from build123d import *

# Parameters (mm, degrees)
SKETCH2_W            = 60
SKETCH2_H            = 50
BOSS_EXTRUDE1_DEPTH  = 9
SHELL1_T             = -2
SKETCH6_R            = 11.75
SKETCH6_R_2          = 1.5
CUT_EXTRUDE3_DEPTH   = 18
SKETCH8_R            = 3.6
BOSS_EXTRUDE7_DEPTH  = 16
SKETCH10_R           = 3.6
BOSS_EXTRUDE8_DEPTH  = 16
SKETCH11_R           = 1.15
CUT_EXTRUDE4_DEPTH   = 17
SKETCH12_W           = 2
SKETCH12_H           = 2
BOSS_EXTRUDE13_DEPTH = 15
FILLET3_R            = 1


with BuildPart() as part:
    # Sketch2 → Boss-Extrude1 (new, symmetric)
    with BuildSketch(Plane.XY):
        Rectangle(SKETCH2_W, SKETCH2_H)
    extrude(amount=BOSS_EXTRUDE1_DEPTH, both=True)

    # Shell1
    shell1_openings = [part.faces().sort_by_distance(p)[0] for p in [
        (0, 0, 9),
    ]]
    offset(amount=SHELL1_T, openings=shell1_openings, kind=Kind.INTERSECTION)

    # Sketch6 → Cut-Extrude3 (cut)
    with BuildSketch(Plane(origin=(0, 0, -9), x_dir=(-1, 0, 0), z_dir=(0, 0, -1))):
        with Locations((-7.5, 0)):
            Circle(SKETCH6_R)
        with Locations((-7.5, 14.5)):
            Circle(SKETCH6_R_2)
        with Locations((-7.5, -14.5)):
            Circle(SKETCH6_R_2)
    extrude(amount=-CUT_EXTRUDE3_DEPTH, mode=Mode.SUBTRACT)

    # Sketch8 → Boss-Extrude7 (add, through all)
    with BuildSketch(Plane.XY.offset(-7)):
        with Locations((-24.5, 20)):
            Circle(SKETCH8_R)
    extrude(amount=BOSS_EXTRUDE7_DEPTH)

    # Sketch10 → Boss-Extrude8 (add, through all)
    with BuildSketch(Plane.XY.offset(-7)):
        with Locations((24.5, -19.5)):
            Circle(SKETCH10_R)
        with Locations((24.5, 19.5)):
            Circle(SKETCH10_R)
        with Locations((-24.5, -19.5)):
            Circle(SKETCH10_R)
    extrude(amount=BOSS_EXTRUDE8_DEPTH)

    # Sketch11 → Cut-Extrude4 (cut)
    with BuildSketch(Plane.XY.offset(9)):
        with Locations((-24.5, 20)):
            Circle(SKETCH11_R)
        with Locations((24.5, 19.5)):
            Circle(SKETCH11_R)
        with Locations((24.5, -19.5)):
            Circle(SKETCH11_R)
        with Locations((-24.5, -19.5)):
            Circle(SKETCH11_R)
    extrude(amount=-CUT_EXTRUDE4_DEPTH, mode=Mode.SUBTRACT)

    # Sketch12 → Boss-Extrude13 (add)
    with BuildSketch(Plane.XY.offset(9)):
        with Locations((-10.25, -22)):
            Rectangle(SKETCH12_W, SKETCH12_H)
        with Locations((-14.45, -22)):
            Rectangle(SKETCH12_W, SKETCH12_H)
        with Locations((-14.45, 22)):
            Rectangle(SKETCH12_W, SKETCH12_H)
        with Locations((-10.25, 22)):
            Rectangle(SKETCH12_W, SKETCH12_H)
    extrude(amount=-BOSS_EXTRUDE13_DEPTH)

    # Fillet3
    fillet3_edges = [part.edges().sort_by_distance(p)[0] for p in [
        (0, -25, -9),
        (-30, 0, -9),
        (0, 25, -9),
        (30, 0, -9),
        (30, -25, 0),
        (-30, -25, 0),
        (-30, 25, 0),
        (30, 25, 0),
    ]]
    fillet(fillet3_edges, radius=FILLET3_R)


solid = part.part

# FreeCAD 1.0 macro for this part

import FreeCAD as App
import Part
import Sketcher

V = App.Vector
Q = App.Units.Quantity


def edges_at(feature, points):
    """Names of the edges that pass closest to the given points."""
    edges = feature.Shape.Edges
    near = lambda p: min(range(len(edges)), key=lambda i: edges[i].distToShape(Part.Vertex(*p))[0])
    return sorted({f"Edge{near(p) + 1}" for p in points})


def faces_at(feature, points):
    """Names of the faces that lie closest to the given points."""
    faces = feature.Shape.Faces
    near = lambda p: min(range(len(faces)), key=lambda i: faces[i].distToShape(Part.Vertex(*p))[0])
    return sorted({f"Face{near(p) + 1}" for p in points})

doc = App.newDocument("Part")
body = doc.addObject("PartDesign::Body", "Body")

sketch1 = body.newObject("Sketcher::SketchObject", "Sketch")
sketch1.AttachmentSupport = (doc.getObject("XY_Plane"), [""])
sketch1.MapMode = "FlatFace"
sketch1.addGeometry([
    Part.LineSegment(V(-30, 25, 0), V(-30, -25, 0)),
    Part.LineSegment(V(-30, -25, 0), V(30, -25, 0)),
    Part.LineSegment(V(30, -25, 0), V(30, 25, 0)),
    Part.LineSegment(V(30, 25, 0), V(-30, 25, 0)),
], False)
sketch1.addConstraint([
    Sketcher.Constraint("Coincident", 0, 2, 1, 1),
    Sketcher.Constraint("Coincident", 1, 2, 2, 1),
    Sketcher.Constraint("Coincident", 2, 2, 3, 1),
    Sketcher.Constraint("Coincident", 3, 2, 0, 1),
    Sketcher.Constraint("Vertical", 0),
    Sketcher.Constraint("Horizontal", 1),
    Sketcher.Constraint("Vertical", 2),
    Sketcher.Constraint("Horizontal", 3),
    Sketcher.Constraint("Symmetric", 0, 2, 2, 2, -1, 1),
    Sketcher.Constraint("DistanceX", 1, 1, 1, 2, Q("60 mm")),
    Sketcher.Constraint("DistanceY", 0, 2, 0, 1, Q("50 mm")),
])
pad1 = body.newObject("PartDesign::Pad", "Pad")
pad1.Profile = sketch1
pad1.Length = 18
pad1.Midplane = True
doc.recompute()

thickness = body.newObject("PartDesign::Thickness", "Thickness")
thickness.Base = (pad1, faces_at(pad1, [(0, 0, 9)]))
thickness.Value = 2
thickness.Reversed = True
thickness.Join = "Intersection"

sketch2 = body.newObject("Sketcher::SketchObject", "Sketch001")
sketch2.AttachmentSupport = (doc.getObject("XY_Plane"), [""])
sketch2.MapMode = "FlatFace"
sketch2.AttachmentOffset = App.Placement(V(0, 0, -9), App.Rotation())
sketch2.addGeometry([
    Part.Circle(V(7.5, 0, 0), V(0, 0, 1), 11.75),
    Part.Circle(V(7.5, 14.5, 0), V(0, 0, 1), 1.5),
    Part.Circle(V(7.5, -14.5, 0), V(0, 0, 1), 1.5),
], False)
sketch2.addConstraint([
    Sketcher.Constraint("Equal", 1, 2),
    Sketcher.Constraint("Symmetric", 1, 3, 2, 3, -1),
    Sketcher.Constraint("PointOnObject", 0, 3, -1),
    Sketcher.Constraint("Vertical", 0, 3, 1, 3),
    Sketcher.Constraint("Diameter", 1, Q("3 mm")),
    Sketcher.Constraint("Diameter", 0, Q("23.5 mm")),
    Sketcher.Constraint("DistanceY", 2, 3, 1, 3, Q("29 mm")),
    Sketcher.Constraint("DistanceX", -1, 1, 0, 3, Q("7.5 mm")),
])
pocket1 = body.newObject("PartDesign::Pocket", "Pocket")
pocket1.Profile = sketch2
pocket1.Length = 18
pocket1.Reversed = True

sketch3 = body.newObject("Sketcher::SketchObject", "Sketch002")
sketch3.AttachmentSupport = (doc.getObject("XY_Plane"), [""])
sketch3.MapMode = "FlatFace"
sketch3.AttachmentOffset = App.Placement(V(0, 0, -7), App.Rotation())
sketch3.addGeometry(Part.Circle(V(-24.5, 20, 0), V(0, 0, 1), 3.6), False)
sketch3.addConstraint([
    Sketcher.Constraint("Diameter", 0, Q("7.2 mm")),
    Sketcher.Constraint("DistanceY", -1, 1, 0, 3, Q("20 mm")),
    Sketcher.Constraint("DistanceX", 0, 3, -1, 1, Q("24.5 mm")),
])
pad2 = body.newObject("PartDesign::Pad", "Pad001")
pad2.Profile = sketch3
pad2.Length = 16

sketch4 = body.newObject("Sketcher::SketchObject", "Sketch003")
sketch4.AttachmentSupport = (doc.getObject("XY_Plane"), [""])
sketch4.MapMode = "FlatFace"
sketch4.AttachmentOffset = App.Placement(V(0, 0, -7), App.Rotation())
sketch4.addGeometry([
    Part.Circle(V(24.5, -19.5, 0), V(0, 0, 1), 3.6),
    Part.Circle(V(24.5, 19.5, 0), V(0, 0, 1), 3.6),
    Part.Circle(V(-24.5, -19.5, 0), V(0, 0, 1), 3.6),
], False)
sketch4.addConstraint([
    Sketcher.Constraint("Equal", 0, 1),
    Sketcher.Constraint("Equal", 1, 2),
    Sketcher.Constraint("Symmetric", 1, 3, 2, 3, -1, 1),
    Sketcher.Constraint("Symmetric", 0, 3, 2, 3, -2),
    Sketcher.Constraint("Diameter", 0, Q("7.2 mm")),
    Sketcher.Constraint("DistanceY", 0, 3, 1, 3, Q("39 mm")),
    Sketcher.Constraint("DistanceX", 2, 3, 0, 3, Q("49 mm")),
])
pad3 = body.newObject("PartDesign::Pad", "Pad002")
pad3.Profile = sketch4
pad3.Length = 16

sketch5 = body.newObject("Sketcher::SketchObject", "Sketch004")
sketch5.AttachmentSupport = (doc.getObject("XY_Plane"), [""])
sketch5.MapMode = "FlatFace"
sketch5.AttachmentOffset = App.Placement(V(0, 0, 9), App.Rotation())
sketch5.addGeometry([
    Part.Circle(V(-24.5, 20, 0), V(0, 0, 1), 1.15),
    Part.Circle(V(24.5, 19.5, 0), V(0, 0, 1), 1.15),
    Part.Circle(V(24.5, -19.5, 0), V(0, 0, 1), 1.15),
    Part.Circle(V(-24.5, -19.5, 0), V(0, 0, 1), 1.15),
], False)
sketch5.addConstraint([
    Sketcher.Constraint("Equal", 0, 1),
    Sketcher.Constraint("Equal", 1, 2),
    Sketcher.Constraint("Equal", 2, 3),
    Sketcher.Constraint("Symmetric", 1, 3, 3, 3, -1, 1),
    Sketcher.Constraint("Symmetric", 2, 3, 3, 3, -2),
    Sketcher.Constraint("Vertical", 0, 3, 3, 3),
    Sketcher.Constraint("Diameter", 0, Q("2.3 mm")),
    Sketcher.Constraint("DistanceY", -1, 1, 0, 3, Q("20 mm")),
    Sketcher.Constraint("DistanceX", 0, 3, 1, 3, Q("49 mm")),
    Sketcher.Constraint("DistanceY", 2, 3, 1, 3, Q("39 mm")),
])
pocket2 = body.newObject("PartDesign::Pocket", "Pocket001")
pocket2.Profile = sketch5
pocket2.Length = 17

sketch6 = body.newObject("Sketcher::SketchObject", "Sketch005")
sketch6.AttachmentSupport = (doc.getObject("XY_Plane"), [""])
sketch6.MapMode = "FlatFace"
sketch6.AttachmentOffset = App.Placement(V(0, 0, 9), App.Rotation())
sketch6.addGeometry([
    Part.LineSegment(V(-11.25, -21, 0), V(-11.25, -23, 0)),
    Part.LineSegment(V(-11.25, -23, 0), V(-9.25, -23, 0)),
    Part.LineSegment(V(-9.25, -23, 0), V(-9.25, -21, 0)),
    Part.LineSegment(V(-9.25, -21, 0), V(-11.25, -21, 0)),
    Part.LineSegment(V(-15.45, -21, 0), V(-15.45, -23, 0)),
    Part.LineSegment(V(-15.45, -23, 0), V(-13.45, -23, 0)),
    Part.LineSegment(V(-13.45, -23, 0), V(-13.45, -21, 0)),
    Part.LineSegment(V(-13.45, -21, 0), V(-15.45, -21, 0)),
    Part.LineSegment(V(-15.45, 23, 0), V(-15.45, 21, 0)),
    Part.LineSegment(V(-15.45, 21, 0), V(-13.45, 21, 0)),
    Part.LineSegment(V(-13.45, 21, 0), V(-13.45, 23, 0)),
    Part.LineSegment(V(-13.45, 23, 0), V(-15.45, 23, 0)),
    Part.LineSegment(V(-11.25, 23, 0), V(-11.25, 21, 0)),
    Part.LineSegment(V(-11.25, 21, 0), V(-9.25, 21, 0)),
    Part.LineSegment(V(-9.25, 21, 0), V(-9.25, 23, 0)),
    Part.LineSegment(V(-9.25, 23, 0), V(-11.25, 23, 0)),
], False)
sketch6.addConstraint([
    Sketcher.Constraint("Coincident", 0, 2, 1, 1),
    Sketcher.Constraint("Coincident", 1, 2, 2, 1),
    Sketcher.Constraint("Coincident", 2, 2, 3, 1),
    Sketcher.Constraint("Coincident", 3, 2, 0, 1),
    Sketcher.Constraint("Coincident", 4, 2, 5, 1),
    Sketcher.Constraint("Coincident", 5, 2, 6, 1),
    Sketcher.Constraint("Coincident", 6, 2, 7, 1),
    Sketcher.Constraint("Coincident", 7, 2, 4, 1),
    Sketcher.Constraint("Coincident", 8, 2, 9, 1),
    Sketcher.Constraint("Coincident", 9, 2, 10, 1),
    Sketcher.Constraint("Coincident", 10, 2, 11, 1),
    Sketcher.Constraint("Coincident", 11, 2, 8, 1),
    Sketcher.Constraint("Coincident", 12, 2, 13, 1),
    Sketcher.Constraint("Coincident", 13, 2, 14, 1),
    Sketcher.Constraint("Coincident", 14, 2, 15, 1),
    Sketcher.Constraint("Coincident", 15, 2, 12, 1),
    Sketcher.Constraint("Vertical", 0),
    Sketcher.Constraint("Horizontal", 1),
    Sketcher.Constraint("Vertical", 2),
    Sketcher.Constraint("Horizontal", 3),
    Sketcher.Constraint("Vertical", 4),
    Sketcher.Constraint("Horizontal", 5),
    Sketcher.Constraint("Vertical", 6),
    Sketcher.Constraint("Horizontal", 7),
    Sketcher.Constraint("Vertical", 8),
    Sketcher.Constraint("Horizontal", 9),
    Sketcher.Constraint("Vertical", 10),
    Sketcher.Constraint("Horizontal", 11),
    Sketcher.Constraint("Vertical", 12),
    Sketcher.Constraint("Horizontal", 13),
    Sketcher.Constraint("Vertical", 14),
    Sketcher.Constraint("Horizontal", 15),
    Sketcher.Constraint("Symmetric", 7, 2, 8, 2, -1),
    Sketcher.Constraint("Symmetric", 5, 2, 10, 2, -1),
    Sketcher.Constraint("Symmetric", 3, 2, 12, 2, -1),
    Sketcher.Constraint("Symmetric", 1, 2, 14, 2, -1),
    Sketcher.Constraint("Horizontal", 1, 2, 4, 2),
    Sketcher.Constraint("Horizontal", 3, 2, 6, 2),
    Sketcher.Constraint("Equal", 3, 5),
    Sketcher.Constraint("Equal", 15, 0),
    Sketcher.Constraint("DistanceX", 1, 1, 1, 2, Q("2 mm")),
    Sketcher.Constraint("DistanceY", 0, 2, -1, 1, Q("23 mm")),
    Sketcher.Constraint("DistanceX", 4, 2, 0, 2, Q("4.2 mm")),
    Sketcher.Constraint("DistanceX", 0, 2, -1, 1, Q("11.25 mm")),
])
pad4 = body.newObject("PartDesign::Pad", "Pad003")
pad4.Profile = sketch6
pad4.Length = 15
pad4.Reversed = True
doc.recompute()

fillet = body.newObject("PartDesign::Fillet", "Fillet")
fillet.Base = (pad4, edges_at(pad4, [
    (0, -25, -9),
    (-30, 0, -9),
    (0, 25, -9),
    (30, 0, -9),
    (30, -25, 0),
    (-30, -25, 0),
    (-30, 25, 0),
    (30, 25, 0),
]))
fillet.Radius = 1

doc.recompute()
